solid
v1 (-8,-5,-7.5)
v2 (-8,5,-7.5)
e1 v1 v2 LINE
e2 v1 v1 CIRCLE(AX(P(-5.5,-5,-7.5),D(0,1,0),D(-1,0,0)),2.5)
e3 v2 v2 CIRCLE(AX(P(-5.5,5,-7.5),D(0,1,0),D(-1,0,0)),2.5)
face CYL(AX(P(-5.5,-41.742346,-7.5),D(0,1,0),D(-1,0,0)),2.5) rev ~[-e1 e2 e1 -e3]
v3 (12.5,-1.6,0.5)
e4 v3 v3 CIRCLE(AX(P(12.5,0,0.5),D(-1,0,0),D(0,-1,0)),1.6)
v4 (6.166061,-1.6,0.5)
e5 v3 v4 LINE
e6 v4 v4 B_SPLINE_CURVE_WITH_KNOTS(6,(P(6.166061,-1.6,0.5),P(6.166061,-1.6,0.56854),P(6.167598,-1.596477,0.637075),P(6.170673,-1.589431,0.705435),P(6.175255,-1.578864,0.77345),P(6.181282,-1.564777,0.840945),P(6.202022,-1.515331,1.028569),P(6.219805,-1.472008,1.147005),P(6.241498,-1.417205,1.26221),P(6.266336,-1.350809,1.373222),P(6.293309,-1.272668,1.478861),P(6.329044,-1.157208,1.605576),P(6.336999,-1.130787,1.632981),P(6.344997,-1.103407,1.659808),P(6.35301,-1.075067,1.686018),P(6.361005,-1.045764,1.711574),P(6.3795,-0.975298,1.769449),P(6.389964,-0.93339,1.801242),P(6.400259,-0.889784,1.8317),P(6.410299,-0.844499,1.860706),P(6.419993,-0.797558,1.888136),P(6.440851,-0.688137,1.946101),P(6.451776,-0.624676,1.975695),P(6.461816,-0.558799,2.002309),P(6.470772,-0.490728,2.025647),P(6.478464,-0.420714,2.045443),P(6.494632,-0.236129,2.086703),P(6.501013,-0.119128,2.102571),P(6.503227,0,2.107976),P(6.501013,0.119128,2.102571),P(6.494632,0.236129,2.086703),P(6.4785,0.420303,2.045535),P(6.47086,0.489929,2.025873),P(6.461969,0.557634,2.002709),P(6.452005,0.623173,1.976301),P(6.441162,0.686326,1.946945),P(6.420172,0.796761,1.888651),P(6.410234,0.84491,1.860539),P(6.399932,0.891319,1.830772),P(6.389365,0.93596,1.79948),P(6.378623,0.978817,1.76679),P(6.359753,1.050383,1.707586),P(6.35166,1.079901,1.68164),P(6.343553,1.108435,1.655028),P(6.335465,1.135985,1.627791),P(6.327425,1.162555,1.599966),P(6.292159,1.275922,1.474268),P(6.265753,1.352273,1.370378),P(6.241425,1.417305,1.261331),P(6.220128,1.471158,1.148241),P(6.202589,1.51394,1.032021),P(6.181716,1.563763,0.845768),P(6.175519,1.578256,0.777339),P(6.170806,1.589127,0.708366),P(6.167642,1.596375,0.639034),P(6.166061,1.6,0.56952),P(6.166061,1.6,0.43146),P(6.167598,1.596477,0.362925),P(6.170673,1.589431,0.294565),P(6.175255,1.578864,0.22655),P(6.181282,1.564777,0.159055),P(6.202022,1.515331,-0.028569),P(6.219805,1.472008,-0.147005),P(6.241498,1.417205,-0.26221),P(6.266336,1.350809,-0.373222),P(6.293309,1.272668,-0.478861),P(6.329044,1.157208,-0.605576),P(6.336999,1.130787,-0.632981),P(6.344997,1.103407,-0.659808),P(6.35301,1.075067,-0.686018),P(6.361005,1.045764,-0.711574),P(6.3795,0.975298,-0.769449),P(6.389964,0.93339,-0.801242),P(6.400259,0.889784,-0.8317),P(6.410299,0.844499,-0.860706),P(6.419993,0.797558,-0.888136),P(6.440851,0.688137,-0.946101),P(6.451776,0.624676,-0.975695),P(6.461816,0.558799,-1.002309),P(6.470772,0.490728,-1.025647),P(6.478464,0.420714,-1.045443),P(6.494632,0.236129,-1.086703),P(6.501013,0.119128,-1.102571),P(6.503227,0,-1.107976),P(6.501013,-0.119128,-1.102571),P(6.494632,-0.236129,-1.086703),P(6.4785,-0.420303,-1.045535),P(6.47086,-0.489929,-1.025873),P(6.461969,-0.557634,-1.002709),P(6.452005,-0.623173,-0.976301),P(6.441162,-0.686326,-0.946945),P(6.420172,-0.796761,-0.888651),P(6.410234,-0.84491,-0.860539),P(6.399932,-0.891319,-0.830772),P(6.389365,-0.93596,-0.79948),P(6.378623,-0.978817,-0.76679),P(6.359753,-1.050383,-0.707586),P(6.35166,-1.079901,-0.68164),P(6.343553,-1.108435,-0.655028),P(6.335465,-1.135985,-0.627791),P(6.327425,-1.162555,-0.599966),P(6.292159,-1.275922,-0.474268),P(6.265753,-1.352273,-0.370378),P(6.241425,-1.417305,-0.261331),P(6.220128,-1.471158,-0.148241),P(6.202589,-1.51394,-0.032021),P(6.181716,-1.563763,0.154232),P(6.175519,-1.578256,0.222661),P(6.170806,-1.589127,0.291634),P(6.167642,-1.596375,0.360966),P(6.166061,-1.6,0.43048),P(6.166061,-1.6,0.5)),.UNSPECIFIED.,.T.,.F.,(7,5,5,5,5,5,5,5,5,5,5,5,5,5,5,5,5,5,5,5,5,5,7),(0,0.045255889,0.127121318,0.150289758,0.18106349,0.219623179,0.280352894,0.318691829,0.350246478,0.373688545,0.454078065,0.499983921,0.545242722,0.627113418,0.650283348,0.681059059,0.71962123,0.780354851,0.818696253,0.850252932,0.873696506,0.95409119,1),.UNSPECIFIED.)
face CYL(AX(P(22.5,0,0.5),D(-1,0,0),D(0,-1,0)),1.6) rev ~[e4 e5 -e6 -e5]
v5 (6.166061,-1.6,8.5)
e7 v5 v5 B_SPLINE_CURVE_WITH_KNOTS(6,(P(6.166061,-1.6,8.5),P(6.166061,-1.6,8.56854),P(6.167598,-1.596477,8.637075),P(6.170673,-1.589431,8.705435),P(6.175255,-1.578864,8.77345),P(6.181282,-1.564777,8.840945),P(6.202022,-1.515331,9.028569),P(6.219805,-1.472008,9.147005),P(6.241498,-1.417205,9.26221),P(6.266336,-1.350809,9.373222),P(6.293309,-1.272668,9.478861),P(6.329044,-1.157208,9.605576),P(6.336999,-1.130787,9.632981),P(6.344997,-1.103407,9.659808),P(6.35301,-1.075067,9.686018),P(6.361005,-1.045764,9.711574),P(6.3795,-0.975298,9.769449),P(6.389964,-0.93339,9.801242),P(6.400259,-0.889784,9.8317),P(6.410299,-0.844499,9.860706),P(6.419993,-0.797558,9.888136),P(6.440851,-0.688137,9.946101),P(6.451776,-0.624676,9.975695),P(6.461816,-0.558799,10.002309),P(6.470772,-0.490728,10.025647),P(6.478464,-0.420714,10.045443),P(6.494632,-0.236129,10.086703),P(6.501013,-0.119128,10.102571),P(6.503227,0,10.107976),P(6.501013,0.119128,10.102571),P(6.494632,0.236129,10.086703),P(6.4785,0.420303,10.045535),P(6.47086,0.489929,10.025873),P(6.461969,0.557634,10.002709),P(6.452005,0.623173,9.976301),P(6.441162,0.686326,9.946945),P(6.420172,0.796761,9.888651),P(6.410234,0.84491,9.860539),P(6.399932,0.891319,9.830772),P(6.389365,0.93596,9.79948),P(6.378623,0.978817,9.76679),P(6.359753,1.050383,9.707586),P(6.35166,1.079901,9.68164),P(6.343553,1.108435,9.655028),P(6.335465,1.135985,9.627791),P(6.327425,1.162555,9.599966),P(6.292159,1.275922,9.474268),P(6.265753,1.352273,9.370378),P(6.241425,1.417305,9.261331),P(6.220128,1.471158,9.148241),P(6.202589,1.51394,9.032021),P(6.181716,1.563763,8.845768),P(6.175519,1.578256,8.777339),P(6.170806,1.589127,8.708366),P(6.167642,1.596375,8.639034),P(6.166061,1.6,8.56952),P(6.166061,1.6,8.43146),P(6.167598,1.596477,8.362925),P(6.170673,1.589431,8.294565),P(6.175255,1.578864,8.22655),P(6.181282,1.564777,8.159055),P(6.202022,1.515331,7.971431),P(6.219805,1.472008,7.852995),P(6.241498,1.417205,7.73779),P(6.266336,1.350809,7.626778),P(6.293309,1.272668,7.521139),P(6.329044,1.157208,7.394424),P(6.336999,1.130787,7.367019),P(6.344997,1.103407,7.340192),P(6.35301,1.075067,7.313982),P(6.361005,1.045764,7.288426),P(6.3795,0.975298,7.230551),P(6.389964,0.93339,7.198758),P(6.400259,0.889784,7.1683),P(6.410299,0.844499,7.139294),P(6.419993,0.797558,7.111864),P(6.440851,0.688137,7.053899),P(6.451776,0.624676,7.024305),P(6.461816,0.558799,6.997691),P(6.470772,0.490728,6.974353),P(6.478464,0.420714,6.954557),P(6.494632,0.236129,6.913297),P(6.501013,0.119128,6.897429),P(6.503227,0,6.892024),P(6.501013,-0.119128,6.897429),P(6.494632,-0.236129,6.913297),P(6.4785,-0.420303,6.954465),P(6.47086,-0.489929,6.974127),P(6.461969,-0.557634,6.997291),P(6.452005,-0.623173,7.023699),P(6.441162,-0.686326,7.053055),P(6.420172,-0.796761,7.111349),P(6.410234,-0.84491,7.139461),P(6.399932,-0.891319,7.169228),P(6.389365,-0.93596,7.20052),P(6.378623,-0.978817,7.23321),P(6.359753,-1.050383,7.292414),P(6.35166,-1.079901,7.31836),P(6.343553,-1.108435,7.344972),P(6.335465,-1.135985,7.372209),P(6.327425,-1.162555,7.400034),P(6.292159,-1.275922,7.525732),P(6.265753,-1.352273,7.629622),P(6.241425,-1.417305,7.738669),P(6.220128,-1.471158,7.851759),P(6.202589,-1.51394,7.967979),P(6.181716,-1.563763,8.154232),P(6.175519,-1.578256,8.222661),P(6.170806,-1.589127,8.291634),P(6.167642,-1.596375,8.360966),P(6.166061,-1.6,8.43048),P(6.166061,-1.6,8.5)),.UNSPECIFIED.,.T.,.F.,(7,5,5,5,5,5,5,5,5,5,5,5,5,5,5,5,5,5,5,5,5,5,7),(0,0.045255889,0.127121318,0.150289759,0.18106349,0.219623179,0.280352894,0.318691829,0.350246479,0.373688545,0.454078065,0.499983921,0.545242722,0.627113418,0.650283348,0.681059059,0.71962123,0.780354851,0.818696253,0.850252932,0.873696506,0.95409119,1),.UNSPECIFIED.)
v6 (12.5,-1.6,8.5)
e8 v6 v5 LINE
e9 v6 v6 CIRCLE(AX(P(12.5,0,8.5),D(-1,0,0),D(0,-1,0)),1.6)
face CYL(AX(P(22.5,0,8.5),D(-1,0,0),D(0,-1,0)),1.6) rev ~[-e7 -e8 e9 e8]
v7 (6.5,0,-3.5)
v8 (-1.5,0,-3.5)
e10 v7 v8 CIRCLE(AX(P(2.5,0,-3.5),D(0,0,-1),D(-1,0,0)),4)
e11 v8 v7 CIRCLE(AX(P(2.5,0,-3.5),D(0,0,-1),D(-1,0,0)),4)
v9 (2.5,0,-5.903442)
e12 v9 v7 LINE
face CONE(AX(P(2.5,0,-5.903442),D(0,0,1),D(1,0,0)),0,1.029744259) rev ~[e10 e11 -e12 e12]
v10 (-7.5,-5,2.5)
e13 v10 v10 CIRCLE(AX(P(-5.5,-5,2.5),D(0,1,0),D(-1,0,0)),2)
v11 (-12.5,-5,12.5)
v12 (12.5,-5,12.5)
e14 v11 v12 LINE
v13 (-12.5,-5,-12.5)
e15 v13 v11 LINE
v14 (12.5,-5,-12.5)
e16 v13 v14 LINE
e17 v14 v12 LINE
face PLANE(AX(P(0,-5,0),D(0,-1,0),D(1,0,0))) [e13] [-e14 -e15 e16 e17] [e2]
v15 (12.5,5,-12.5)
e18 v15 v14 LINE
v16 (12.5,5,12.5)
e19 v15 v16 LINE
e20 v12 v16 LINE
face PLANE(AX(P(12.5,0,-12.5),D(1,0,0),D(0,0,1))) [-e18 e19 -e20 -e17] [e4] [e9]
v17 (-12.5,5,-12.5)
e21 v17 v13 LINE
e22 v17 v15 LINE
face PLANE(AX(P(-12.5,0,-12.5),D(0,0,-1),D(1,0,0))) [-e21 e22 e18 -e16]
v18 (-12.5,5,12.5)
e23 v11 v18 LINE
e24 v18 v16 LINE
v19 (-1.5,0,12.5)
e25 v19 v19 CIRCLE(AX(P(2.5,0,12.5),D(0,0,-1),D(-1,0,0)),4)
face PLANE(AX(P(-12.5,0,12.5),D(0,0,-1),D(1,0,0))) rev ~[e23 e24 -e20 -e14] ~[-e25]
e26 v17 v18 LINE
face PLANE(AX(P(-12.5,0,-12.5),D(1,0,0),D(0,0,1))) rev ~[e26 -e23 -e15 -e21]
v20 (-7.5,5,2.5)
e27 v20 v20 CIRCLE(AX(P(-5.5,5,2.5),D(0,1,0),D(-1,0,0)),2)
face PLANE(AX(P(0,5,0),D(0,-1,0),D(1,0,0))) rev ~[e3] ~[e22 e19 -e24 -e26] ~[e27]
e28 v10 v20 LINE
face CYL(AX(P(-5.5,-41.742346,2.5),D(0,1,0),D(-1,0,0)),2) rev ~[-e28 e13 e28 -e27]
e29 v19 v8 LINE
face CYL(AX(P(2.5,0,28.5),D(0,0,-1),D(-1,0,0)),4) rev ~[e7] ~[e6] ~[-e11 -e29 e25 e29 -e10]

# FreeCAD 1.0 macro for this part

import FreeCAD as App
import Part
import Sketcher


def add_polygon(sketch, points):
    """Adds a closed chain of lines whose ends are joined by coincident constraints."""
    first, n = sketch.GeometryCount, len(points)
    for a, b in zip(points, points[1:] + points[:1]):
        sketch.addGeometry(Part.LineSegment(App.Vector(*a, 0), App.Vector(*b, 0)), False)
    for i in range(n):
        sketch.addConstraint(Sketcher.Constraint("Coincident", first + i, 2, first + (i + 1) % n, 1))

doc = App.newDocument("Part")
body = doc.addObject("PartDesign::Body", "Body")

sketch1 = doc.addObject("Sketcher::SketchObject", "Sketch")
body.addObject(sketch1)
sketch1.AttachmentSupport = (doc.XZ_Plane, [""])
sketch1.MapMode = "FlatFace"
add_polygon(sketch1, [(-12, 12), (-12, -12), (12, -12), (12, 12)])
sketch1.addConstraint(Sketcher.Constraint("Vertical", 0))
sketch1.addConstraint(Sketcher.Constraint("Horizontal", 1))
sketch1.addConstraint(Sketcher.Constraint("Vertical", 2))
sketch1.addConstraint(Sketcher.Constraint("Horizontal", 3))
sketch1.addConstraint(Sketcher.Constraint("Symmetric", 0, 2, 2, 2, -1, 1))
sketch1.addConstraint(Sketcher.Constraint("Equal", 3, 0))
sketch1.addConstraint(Sketcher.Constraint("DistanceX", 1, 1, 1, 2, 25.0))
pad1 = doc.addObject("PartDesign::Pad", "Pad")
body.addObject(pad1)
pad1.Profile = sketch1
pad1.Length = 10
pad1.Midplane = True

sketch2 = doc.addObject("Sketcher::SketchObject", "Sketch001")
body.addObject(sketch2)
sketch2.AttachmentSupport = (doc.XZ_Plane, [""])
sketch2.MapMode = "FlatFace"
sketch2.AttachmentOffset = App.Placement(App.Vector(0, 0, 5), App.Rotation())
sketch2.addGeometry(Part.Circle(App.Vector(-5.5, 2.5, 0), App.Vector(0, 0, 1), 2), False)
sketch2.addConstraint(Sketcher.Constraint("Diameter", 0, 4.0))
sketch2.addConstraint(Sketcher.Constraint("DistanceX", 0, 3, -1, 1, 5.5))
sketch2.addConstraint(Sketcher.Constraint("DistanceY", -1, 1, 0, 3, 2.5))
doc.recompute()
hole = doc.addObject("PartDesign::Hole", "Hole")
body.addObject(hole)
hole.Profile = sketch2
hole.ThreadType = "None"
hole.Diameter = 4
hole.DepthType = "ThroughAll"

sketch3 = doc.addObject("Sketcher::SketchObject", "Sketch002")
body.addObject(sketch3)
sketch3.AttachmentSupport = (doc.XZ_Plane, [""])
sketch3.MapMode = "FlatFace"
sketch3.AttachmentOffset = App.Placement(App.Vector(0, 0, 5), App.Rotation())
sketch3.addGeometry(Part.Circle(App.Vector(-5.5, -7.5, 0), App.Vector(0, 0, 1), 2.5), False)
sketch3.addConstraint(Sketcher.Constraint("Diameter", 0, 5.0))
sketch3.addConstraint(Sketcher.Constraint("DistanceX", 0, 3, -1, 1, 5.5))
sketch3.addConstraint(Sketcher.Constraint("DistanceY", 0, 3, -1, 1, 7.5))
doc.recompute()
hole2 = doc.addObject("PartDesign::Hole", "Hole001")
body.addObject(hole2)
hole2.Profile = sketch3
hole2.ThreadType = "None"
hole2.Diameter = 5
hole2.DepthType = "ThroughAll"

sketch4 = doc.addObject("Sketcher::SketchObject", "Sketch003")
body.addObject(sketch4)
sketch4.AttachmentSupport = (doc.XY_Plane, [""])
sketch4.MapMode = "FlatFace"
sketch4.AttachmentOffset = App.Placement(App.Vector(0, 0, 12.5), App.Rotation())
sketch4.addGeometry(Part.Circle(App.Vector(2.5, 0, 0), App.Vector(0, 0, 1), 4), False)
sketch4.addConstraint(Sketcher.Constraint("PointOnObject", 0, 3, -1))
sketch4.addConstraint(Sketcher.Constraint("Diameter", 0, 8.0))
sketch4.addConstraint(Sketcher.Constraint("DistanceX", -1, 1, 0, 3, 2.5))
doc.recompute()
hole3 = doc.addObject("PartDesign::Hole", "Hole002")
body.addObject(hole3)
hole3.Profile = sketch4
hole3.ThreadType = "None"
hole3.Diameter = 8
hole3.DepthType = "Dimension"
hole3.Depth = 16
hole3.DrillPoint = "Angled"
hole3.DrillPointAngle = 118

sketch5 = doc.addObject("Sketcher::SketchObject", "Sketch004")
body.addObject(sketch5)
sketch5.AttachmentSupport = (doc.YZ_Plane, [""])
sketch5.MapMode = "FlatFace"
sketch5.AttachmentOffset = App.Placement(App.Vector(0, 0, 12.5), App.Rotation())
sketch5.addGeometry(Part.Circle(App.Vector(0, 8.5, 0), App.Vector(0, 0, 1), 1.6), False)
sketch5.addGeometry(Part.Circle(App.Vector(0, 0.5, 0), App.Vector(0, 0, 1), 1.6), False)
sketch5.addConstraint(Sketcher.Constraint("Equal", 0, 1))
sketch5.addConstraint(Sketcher.Constraint("PointOnObject", 0, 3, -2))
sketch5.addConstraint(Sketcher.Constraint("PointOnObject", 1, 3, -2))
sketch5.addConstraint(Sketcher.Constraint("Diameter", 0, 3.2))
sketch5.addConstraint(Sketcher.Constraint("DistanceY", 1, 3, 0, 3, 8.0))
sketch5.addConstraint(Sketcher.Constraint("DistanceY", -1, 1, 0, 3, 8.5))
doc.recompute()
hole4 = doc.addObject("PartDesign::Hole", "Hole003")
body.addObject(hole4)
hole4.Profile = sketch5
hole4.ThreadType = "None"
hole4.Diameter = 3.2
hole4.DepthType = "Dimension"
hole4.Depth = 10
hole4.DrillPoint = "Angled"
hole4.DrillPointAngle = 118

doc.recompute()
